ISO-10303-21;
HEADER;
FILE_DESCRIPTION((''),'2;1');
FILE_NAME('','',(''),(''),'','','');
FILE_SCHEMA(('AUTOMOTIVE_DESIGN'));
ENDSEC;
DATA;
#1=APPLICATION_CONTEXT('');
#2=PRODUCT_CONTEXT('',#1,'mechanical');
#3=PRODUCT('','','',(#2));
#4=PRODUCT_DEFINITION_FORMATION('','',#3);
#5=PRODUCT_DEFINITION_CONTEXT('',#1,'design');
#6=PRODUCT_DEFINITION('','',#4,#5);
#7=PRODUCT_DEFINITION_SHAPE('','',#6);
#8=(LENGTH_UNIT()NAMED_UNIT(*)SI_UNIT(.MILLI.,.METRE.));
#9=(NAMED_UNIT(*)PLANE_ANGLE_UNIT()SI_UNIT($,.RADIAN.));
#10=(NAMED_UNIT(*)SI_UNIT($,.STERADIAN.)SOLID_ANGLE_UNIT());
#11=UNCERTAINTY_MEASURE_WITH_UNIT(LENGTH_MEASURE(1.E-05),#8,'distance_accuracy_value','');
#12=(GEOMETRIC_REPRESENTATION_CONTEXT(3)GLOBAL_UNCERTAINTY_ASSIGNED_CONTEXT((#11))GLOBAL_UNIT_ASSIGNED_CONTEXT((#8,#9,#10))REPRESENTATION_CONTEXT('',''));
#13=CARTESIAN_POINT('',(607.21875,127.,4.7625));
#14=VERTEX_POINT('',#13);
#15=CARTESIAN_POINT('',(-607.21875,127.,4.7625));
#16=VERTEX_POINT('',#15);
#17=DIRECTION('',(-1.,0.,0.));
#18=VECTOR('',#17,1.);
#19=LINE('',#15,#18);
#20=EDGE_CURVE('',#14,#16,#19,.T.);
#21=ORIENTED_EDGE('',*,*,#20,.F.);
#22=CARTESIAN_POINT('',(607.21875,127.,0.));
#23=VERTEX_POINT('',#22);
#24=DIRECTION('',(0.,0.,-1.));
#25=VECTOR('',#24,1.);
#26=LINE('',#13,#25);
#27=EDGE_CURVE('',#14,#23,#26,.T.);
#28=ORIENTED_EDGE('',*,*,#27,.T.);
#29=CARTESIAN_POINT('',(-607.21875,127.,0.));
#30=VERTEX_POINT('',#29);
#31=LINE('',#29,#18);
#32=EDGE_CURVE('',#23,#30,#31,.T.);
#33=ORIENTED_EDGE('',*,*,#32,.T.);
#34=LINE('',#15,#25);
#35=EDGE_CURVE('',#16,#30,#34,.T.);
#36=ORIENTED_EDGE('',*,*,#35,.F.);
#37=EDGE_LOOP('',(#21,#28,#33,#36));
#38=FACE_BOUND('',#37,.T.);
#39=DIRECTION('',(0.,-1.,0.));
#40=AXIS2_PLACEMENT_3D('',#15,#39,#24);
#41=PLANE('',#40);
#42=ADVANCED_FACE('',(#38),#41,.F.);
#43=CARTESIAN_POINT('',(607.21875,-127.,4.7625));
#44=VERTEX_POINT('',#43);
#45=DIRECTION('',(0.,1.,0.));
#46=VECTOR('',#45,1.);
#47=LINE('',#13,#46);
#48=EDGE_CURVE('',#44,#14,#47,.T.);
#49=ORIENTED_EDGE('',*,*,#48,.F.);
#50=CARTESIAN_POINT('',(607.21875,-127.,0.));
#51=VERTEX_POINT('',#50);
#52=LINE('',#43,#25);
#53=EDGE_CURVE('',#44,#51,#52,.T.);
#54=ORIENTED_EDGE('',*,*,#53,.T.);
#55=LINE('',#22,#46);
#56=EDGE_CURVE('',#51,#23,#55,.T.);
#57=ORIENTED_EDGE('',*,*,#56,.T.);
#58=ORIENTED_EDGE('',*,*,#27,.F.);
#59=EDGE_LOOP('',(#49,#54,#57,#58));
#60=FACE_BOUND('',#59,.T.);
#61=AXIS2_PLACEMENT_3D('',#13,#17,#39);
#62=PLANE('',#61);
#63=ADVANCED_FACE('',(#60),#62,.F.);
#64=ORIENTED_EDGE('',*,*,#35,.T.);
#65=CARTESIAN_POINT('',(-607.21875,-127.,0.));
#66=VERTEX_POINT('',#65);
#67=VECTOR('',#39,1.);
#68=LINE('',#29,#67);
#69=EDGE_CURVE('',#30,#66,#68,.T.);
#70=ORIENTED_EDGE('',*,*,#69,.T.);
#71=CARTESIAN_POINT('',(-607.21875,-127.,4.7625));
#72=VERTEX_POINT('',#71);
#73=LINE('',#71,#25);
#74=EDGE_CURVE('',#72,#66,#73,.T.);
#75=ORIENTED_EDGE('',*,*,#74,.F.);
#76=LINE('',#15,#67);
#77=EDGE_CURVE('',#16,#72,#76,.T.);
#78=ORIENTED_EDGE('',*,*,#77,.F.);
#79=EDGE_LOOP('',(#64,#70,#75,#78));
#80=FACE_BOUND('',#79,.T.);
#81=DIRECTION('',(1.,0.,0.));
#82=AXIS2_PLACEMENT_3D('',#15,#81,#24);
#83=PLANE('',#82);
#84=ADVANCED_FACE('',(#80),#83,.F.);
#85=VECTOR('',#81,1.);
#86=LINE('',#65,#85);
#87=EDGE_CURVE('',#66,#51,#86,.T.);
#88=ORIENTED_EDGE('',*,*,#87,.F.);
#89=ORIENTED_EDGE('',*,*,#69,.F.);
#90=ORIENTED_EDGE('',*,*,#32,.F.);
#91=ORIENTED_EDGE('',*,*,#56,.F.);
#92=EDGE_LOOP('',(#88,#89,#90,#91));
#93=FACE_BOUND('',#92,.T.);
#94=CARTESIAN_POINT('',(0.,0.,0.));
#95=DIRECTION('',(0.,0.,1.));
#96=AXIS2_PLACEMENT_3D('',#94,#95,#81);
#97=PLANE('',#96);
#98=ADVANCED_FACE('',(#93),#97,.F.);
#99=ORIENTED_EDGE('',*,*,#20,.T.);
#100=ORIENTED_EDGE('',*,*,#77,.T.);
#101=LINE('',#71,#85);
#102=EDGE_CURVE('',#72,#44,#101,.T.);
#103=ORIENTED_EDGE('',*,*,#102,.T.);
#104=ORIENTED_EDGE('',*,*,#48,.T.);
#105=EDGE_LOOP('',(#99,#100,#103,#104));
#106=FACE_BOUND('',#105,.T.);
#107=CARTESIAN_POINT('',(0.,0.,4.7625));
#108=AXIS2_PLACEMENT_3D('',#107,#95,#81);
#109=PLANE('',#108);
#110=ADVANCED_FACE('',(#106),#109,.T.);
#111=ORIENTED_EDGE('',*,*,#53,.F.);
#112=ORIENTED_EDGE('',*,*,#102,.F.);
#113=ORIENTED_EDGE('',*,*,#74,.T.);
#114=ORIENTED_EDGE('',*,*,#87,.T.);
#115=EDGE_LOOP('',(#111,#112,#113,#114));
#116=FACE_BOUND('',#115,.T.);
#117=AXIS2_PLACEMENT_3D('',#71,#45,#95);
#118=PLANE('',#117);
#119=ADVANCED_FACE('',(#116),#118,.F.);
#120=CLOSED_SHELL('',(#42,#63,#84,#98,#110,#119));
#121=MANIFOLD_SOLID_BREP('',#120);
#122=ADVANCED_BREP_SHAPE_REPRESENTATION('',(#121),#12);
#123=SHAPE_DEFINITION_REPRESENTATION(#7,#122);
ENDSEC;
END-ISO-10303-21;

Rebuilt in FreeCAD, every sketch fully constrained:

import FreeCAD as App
import Part
import Sketcher
from FreeCAD import Vector
Q = App.Units.Quantity

doc = App.newDocument("Part")
body = doc.addObject("PartDesign::Body", "Body")

# Sketch on XY plane
sketch1 = doc.addObject("Sketcher::SketchObject", "Sketch")
body.addObject(sketch1)
sketch1.AttachmentSupport = (doc.XY_Plane, [""])
sketch1.MapMode = "FlatFace"
sketch1.addGeometry([
    Part.LineSegment(Vector(-607.21875, 127, 0), Vector(-607.21875, -127, 0)),
    Part.LineSegment(Vector(-607.21875, -127, 0), Vector(607.21875, -127, 0)),
    Part.LineSegment(Vector(607.21875, -127, 0), Vector(607.21875, 127, 0)),
    Part.LineSegment(Vector(607.21875, 127, 0), Vector(-607.21875, 127, 0)),
], False)
sketch1.addConstraint([
    Sketcher.Constraint("Coincident", 0, 2, 1, 1),
    Sketcher.Constraint("Coincident", 1, 2, 2, 1),
    Sketcher.Constraint("Coincident", 2, 2, 3, 1),
    Sketcher.Constraint("Coincident", 3, 2, 0, 1),
    Sketcher.Constraint("Vertical", 0),
    Sketcher.Constraint("Horizontal", 1),
    Sketcher.Constraint("Vertical", 2),
    Sketcher.Constraint("Horizontal", 3),
    Sketcher.Constraint("Symmetric", 0, 2, 2, 2, -1, 1),
    Sketcher.Constraint("DistanceY", 0, 2, 0, 1, Q("10 in")),
    Sketcher.Constraint("DistanceX", 1, 1, 1, 2, Q("47.8125 in")),
])
pad1 = doc.addObject("PartDesign::Pad", "Pad")
body.addObject(pad1)
pad1.Profile = sketch1
pad1.Length = Q("0.1875 in")

doc.recompute()
